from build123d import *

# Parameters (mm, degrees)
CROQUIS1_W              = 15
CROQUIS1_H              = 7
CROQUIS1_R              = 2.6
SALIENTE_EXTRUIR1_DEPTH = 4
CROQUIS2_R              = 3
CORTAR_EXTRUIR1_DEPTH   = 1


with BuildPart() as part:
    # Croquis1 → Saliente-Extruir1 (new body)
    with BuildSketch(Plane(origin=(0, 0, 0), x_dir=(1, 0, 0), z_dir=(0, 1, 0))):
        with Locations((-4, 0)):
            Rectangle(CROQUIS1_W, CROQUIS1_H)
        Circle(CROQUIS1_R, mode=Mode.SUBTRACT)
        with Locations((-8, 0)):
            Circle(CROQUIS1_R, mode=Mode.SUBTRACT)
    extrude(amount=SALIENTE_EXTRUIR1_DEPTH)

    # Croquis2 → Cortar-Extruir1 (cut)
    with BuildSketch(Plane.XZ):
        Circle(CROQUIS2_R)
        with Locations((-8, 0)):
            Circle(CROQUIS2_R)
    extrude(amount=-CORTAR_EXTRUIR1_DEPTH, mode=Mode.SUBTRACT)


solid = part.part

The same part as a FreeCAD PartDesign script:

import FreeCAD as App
import Part
import Sketcher
from FreeCAD import Vector

doc = App.newDocument("Part")
body = doc.addObject("PartDesign::Body", "Body")

# Sketch on XZ plane
sketch1 = body.newObject("Sketcher::SketchObject", "Sketch")
sketch1.AttachmentSupport = (doc.getObject("XZ_Plane"), [""])
sketch1.MapMode = "FlatFace"
sketch1.addGeometry([
    Part.LineSegment(Vector(-11.5, -3.5, 0), Vector(-11.5, 3.5, 0)),  # 0
    Part.LineSegment(Vector(-11.5, 3.5, 0), Vector(3.5, 3.5, 0)),  # 1
    Part.LineSegment(Vector(3.5, 3.5, 0), Vector(3.5, -3.5, 0)),  # 2
    Part.LineSegment(Vector(3.5, -3.5, 0), Vector(-11.5, -3.5, 0)),  # 3
    Part.Circle(Vector(-8, 0, 0), Vector(0, 0, 1), 2.6),  # 4
    Part.Circle(Vector(0, 0, 0), Vector(0, 0, 1), 2.6),  # 5
], False)
sketch1.addConstraint([
    Sketcher.Constraint("Coincident", 0, 2, 1, 1),
    Sketcher.Constraint("Coincident", 1, 2, 2, 1),
    Sketcher.Constraint("Coincident", 2, 2, 3, 1),
    Sketcher.Constraint("Coincident", 3, 2, 0, 1),
    Sketcher.Constraint("Vertical", 0),
    Sketcher.Constraint("Horizontal", 1),
    Sketcher.Constraint("Vertical", 2),
    Sketcher.Constraint("Horizontal", 3),
    Sketcher.Constraint("Coincident", 5, 3, -1, 1),
    Sketcher.Constraint("Equal", 4, 5),
    Sketcher.Constraint("PointOnObject", 4, 3, -1),
    Sketcher.Constraint("Diameter", 4, 5.2),
    Sketcher.Constraint("DistanceX", 1, 1, 1, 2, 15.0),
    Sketcher.Constraint("DistanceY", 0, 1, 0, 2, 7.0),
    Sketcher.Constraint("DistanceX", 4, 3, -1, 1, 8.0),
    Sketcher.Constraint("DistanceX", 0, 2, -1, 1, 11.5),
    Sketcher.Constraint("DistanceY", -1, 1, 0, 2, 3.5),
])
pad1 = body.newObject("PartDesign::Pad", "Pad")
pad1.Profile = sketch1
pad1.Length = 4
pad1.Reversed = True

# Sketch on XZ plane
sketch2 = body.newObject("Sketcher::SketchObject", "Sketch001")
sketch2.AttachmentSupport = (doc.getObject("XZ_Plane"), [""])
sketch2.MapMode = "FlatFace"
sketch2.addGeometry([
    Part.Circle(Vector(0, 0, 0), Vector(0, 0, 1), 3),
    Part.Circle(Vector(-8, 0, 0), Vector(0, 0, 1), 3),
], False)
sketch2.addConstraint([
    Sketcher.Constraint("Coincident", 0, 3, -1, 1),
    Sketcher.Constraint("Equal", 0, 1),
    Sketcher.Constraint("PointOnObject", 1, 3, -1),
    Sketcher.Constraint("Diameter", 0, 6.0),
    Sketcher.Constraint("DistanceX", 1, 3, -1, 1, 8.0),
])
pocket1 = body.newObject("PartDesign::Pocket", "Pocket")
pocket1.Profile = sketch2
pocket1.Length = 1

doc.recompute()
